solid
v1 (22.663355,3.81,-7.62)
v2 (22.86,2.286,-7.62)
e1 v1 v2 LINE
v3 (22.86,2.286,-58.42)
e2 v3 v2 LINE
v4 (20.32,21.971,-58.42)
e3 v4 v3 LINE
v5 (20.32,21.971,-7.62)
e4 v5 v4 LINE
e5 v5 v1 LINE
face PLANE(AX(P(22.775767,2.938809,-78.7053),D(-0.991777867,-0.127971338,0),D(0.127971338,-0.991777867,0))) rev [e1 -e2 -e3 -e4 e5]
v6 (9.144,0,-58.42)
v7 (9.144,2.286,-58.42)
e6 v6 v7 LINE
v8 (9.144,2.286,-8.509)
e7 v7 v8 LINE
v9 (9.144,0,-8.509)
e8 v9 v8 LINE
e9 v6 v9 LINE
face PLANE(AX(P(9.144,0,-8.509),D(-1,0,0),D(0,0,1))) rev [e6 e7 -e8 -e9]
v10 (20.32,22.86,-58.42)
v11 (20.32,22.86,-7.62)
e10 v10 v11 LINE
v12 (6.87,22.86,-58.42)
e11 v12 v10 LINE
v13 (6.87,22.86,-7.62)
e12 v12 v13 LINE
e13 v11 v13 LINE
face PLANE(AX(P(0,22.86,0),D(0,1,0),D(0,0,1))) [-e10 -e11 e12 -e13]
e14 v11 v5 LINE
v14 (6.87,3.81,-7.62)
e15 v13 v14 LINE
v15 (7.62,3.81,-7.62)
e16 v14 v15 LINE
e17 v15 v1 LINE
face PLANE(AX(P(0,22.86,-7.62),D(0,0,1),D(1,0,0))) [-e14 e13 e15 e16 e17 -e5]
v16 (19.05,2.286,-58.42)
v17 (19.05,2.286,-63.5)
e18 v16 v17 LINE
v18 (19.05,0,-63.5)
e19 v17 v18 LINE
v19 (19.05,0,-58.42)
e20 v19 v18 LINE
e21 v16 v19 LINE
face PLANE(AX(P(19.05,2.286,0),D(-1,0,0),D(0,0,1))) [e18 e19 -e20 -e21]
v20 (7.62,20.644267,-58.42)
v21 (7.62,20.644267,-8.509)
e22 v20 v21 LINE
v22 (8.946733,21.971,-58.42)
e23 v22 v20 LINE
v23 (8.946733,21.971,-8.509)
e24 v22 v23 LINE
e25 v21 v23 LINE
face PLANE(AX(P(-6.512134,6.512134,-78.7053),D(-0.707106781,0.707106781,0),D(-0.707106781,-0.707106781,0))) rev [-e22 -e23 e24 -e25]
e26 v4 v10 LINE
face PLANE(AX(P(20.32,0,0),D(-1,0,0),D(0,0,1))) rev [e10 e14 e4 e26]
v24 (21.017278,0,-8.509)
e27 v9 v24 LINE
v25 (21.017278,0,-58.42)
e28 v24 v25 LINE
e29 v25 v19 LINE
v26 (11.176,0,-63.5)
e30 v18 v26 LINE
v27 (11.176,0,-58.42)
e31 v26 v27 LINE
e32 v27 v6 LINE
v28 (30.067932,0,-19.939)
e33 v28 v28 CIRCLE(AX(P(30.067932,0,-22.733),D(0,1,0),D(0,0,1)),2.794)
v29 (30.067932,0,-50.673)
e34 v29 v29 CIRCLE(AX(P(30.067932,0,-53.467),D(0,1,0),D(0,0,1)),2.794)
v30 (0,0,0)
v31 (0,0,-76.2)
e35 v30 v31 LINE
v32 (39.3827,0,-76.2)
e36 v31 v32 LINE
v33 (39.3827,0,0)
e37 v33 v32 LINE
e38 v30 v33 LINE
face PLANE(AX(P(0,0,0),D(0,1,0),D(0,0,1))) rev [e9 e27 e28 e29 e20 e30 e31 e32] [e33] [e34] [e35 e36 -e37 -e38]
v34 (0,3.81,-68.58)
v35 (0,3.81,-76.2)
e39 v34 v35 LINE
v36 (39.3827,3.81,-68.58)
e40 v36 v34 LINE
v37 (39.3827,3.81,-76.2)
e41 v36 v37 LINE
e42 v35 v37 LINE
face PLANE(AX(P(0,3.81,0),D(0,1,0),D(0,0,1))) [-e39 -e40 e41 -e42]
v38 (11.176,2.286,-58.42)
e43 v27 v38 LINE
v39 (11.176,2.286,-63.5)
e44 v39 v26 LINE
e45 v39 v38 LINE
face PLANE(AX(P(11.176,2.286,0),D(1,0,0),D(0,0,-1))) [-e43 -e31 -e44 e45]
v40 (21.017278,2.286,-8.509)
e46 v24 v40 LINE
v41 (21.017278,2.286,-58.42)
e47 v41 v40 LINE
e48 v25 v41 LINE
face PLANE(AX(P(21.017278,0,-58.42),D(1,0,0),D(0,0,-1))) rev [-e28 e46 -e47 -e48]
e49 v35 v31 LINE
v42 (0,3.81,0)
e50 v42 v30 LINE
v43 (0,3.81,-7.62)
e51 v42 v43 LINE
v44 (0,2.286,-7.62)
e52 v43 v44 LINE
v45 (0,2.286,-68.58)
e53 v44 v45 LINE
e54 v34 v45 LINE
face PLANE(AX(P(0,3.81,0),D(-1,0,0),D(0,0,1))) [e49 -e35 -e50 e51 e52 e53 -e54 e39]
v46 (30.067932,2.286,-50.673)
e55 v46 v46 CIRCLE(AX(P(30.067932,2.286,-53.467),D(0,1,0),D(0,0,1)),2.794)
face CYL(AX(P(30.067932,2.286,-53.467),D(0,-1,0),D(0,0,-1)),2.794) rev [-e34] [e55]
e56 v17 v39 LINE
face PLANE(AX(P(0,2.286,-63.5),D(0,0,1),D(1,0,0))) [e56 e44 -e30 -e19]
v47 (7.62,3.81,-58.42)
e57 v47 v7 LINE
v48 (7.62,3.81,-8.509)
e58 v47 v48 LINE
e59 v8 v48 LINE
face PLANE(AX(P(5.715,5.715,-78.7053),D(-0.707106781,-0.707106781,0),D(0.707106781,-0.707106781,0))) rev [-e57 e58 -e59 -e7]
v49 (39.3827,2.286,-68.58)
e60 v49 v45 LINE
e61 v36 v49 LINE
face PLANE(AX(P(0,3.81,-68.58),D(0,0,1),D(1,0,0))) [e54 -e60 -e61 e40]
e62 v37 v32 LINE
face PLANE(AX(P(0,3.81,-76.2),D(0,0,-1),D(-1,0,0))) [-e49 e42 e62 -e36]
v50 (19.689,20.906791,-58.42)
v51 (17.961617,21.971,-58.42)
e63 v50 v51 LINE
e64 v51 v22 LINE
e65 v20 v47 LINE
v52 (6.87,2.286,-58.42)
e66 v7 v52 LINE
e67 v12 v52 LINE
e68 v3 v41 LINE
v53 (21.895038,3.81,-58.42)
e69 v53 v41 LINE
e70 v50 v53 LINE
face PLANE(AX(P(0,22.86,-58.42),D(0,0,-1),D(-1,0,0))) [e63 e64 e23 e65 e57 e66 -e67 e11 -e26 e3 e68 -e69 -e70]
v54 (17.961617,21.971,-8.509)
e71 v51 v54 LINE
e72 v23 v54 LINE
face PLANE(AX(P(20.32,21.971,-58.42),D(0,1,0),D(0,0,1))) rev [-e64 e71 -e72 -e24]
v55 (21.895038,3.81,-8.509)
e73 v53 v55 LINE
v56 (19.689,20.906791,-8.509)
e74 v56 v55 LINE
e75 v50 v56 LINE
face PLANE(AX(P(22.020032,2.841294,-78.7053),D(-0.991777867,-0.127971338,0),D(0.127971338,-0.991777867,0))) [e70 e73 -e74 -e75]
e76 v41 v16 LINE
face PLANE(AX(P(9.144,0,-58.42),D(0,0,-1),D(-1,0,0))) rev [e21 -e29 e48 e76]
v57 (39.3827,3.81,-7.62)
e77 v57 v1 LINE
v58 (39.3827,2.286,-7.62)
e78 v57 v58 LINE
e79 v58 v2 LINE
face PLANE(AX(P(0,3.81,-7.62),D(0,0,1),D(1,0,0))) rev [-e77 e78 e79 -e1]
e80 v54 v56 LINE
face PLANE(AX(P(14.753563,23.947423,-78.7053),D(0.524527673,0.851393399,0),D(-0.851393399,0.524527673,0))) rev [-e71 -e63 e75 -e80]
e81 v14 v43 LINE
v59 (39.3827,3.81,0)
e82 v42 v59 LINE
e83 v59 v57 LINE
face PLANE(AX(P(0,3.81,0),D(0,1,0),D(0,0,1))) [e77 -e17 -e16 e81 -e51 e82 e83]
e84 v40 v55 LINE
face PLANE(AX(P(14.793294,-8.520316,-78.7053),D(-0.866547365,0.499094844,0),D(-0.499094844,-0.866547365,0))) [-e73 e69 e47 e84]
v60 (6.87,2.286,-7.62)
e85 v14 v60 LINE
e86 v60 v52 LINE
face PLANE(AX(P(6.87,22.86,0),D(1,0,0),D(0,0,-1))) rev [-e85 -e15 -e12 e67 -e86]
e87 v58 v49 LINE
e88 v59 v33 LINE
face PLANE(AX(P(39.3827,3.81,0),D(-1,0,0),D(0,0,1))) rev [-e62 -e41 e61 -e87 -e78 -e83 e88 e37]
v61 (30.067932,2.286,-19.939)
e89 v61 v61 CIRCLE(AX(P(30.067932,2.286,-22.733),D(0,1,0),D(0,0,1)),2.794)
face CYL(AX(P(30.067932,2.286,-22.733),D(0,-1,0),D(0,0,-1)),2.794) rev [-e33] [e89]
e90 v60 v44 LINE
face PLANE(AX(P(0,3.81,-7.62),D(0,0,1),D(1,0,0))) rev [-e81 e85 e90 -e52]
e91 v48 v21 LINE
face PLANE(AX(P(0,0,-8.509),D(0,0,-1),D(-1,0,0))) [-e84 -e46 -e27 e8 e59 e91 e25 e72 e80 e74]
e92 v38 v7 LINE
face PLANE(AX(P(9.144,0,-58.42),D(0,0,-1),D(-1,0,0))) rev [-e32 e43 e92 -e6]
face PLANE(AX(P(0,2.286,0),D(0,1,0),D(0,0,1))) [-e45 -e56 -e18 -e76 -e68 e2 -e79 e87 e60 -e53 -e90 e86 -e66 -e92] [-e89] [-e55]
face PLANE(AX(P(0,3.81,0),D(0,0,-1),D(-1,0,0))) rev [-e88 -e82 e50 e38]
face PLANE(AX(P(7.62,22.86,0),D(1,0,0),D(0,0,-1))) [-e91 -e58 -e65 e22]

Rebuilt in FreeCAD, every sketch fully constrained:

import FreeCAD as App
import Part
import Sketcher
Q = App.Units.Quantity


def add_polygon(sketch, points):
    """Adds a closed chain of lines whose ends are joined by coincident constraints."""
    first, n = sketch.GeometryCount, len(points)
    for a, b in zip(points, points[1:] + points[:1]):
        sketch.addGeometry(Part.LineSegment(App.Vector(*a, 0), App.Vector(*b, 0)), False)
    for i in range(n):
        sketch.addConstraint(Sketcher.Constraint("Coincident", first + i, 2, first + (i + 1) % n, 1))

doc = App.newDocument("Part")
body = doc.addObject("PartDesign::Body", "Body")

# Sketch on XZ plane
sketch1 = doc.addObject("Sketcher::SketchObject", "Sketch")
body.addObject(sketch1)
sketch1.AttachmentSupport = (doc.XZ_Plane, [""])
sketch1.MapMode = "FlatFace"
add_polygon(sketch1, [(0, -8), (0, 0), (39, 0), (39, -8)])  # lines 0-3
sketch1.addConstraint([
    Sketcher.Constraint("Vertical", 0),
    Sketcher.Constraint("Horizontal", 1),
    Sketcher.Constraint("Vertical", 2),
    Sketcher.Constraint("Horizontal", 3),
    Sketcher.Constraint("Coincident", 0, 2, -1, 1),
    Sketcher.Constraint("DistanceY", 0, 1, 0, 2, Q("0.3 in")),
    Sketcher.Constraint("DistanceX", 1, 1, 1, 2, Q("1.5505 in")),
])
pad1 = doc.addObject("PartDesign::Pad", "Pad")
body.addObject(pad1)
pad1.Profile = sketch1
pad1.Length = Q("0.15 in")
pad1.Reversed = True
body2 = doc.addObject("PartDesign::Body", "Body001")

# Sketch on XZ plane
sketch2 = doc.addObject("Sketcher::SketchObject", "Sketch001")
body2.addObject(sketch2)
sketch2.AttachmentSupport = (doc.getObject("XZ_Plane001"), [""])
sketch2.MapMode = "FlatFace"
add_polygon(sketch2, [(0, -76), (0, -69), (39, -69), (39, -76)])  # lines 0-3
sketch2.addConstraint([
    Sketcher.Constraint("Vertical", 0),
    Sketcher.Constraint("Horizontal", 1),
    Sketcher.Constraint("Vertical", 2),
    Sketcher.Constraint("Horizontal", 3),
    Sketcher.Constraint("PointOnObject", 0, 2, -2),
    Sketcher.Constraint("DistanceY", 0, 1, 0, 2, Q("0.3 in")),
    Sketcher.Constraint("DistanceY", 2, 2, -1, 1, Q("3 in")),
    Sketcher.Constraint("DistanceX", 1, 1, 1, 2, Q("1.5505 in")),
])
pad2 = doc.addObject("PartDesign::Pad", "Pad001")
body2.addObject(pad2)
pad2.Profile = sketch2
pad2.Length = Q("0.15 in")
pad2.Reversed = True
body.AllowCompound = True
doc.recompute()

boolean = doc.addObject("PartDesign::Boolean", "Boolean")
body.addObject(boolean)
boolean.Type = "Fuse"
boolean.addObjects([body2])

# Sketch on XZ plane
sketch3 = doc.addObject("Sketcher::SketchObject", "Sketch002")
body.addObject(sketch3)
sketch3.AttachmentSupport = (doc.XZ_Plane, [""])
sketch3.MapMode = "FlatFace"
add_polygon(sketch3, [(0, -68.6), (0, -7.6), (39.4, -7.6), (39.4, -68.6)])  # lines 0-3
add_polygon(sketch3, [(19.1, -12.7), (11.2, -12.7), (11.2, -63.5), (19.1, -63.5)])  # lines 4-7
sketch3.addGeometry(Part.Circle(App.Vector(30.1, -22.7, 0), App.Vector(0, 0, 1), 2.8), False)  # 8
sketch3.addGeometry(Part.Circle(App.Vector(30.1, -53.5, 0), App.Vector(0, 0, 1), 2.8), False)  # 9
sketch3.addConstraint([
    Sketcher.Constraint("Vertical", 0),
    Sketcher.Constraint("Horizontal", 1),
    Sketcher.Constraint("Vertical", 2),
    Sketcher.Constraint("Horizontal", 3),
    Sketcher.Constraint("Horizontal", 4),
    Sketcher.Constraint("Vertical", 5),
    Sketcher.Constraint("Horizontal", 6),
    Sketcher.Constraint("Vertical", 7),
    Sketcher.Constraint("Equal", 8, 9),
    Sketcher.Constraint("PointOnObject", 0, 2, -2),
    Sketcher.Constraint("Vertical", 8, 3, 9, 3),
    Sketcher.Constraint("Diameter", 8, Q("0.22 in")),
    Sketcher.Constraint("DistanceY", 5, 2, 5, 1, Q("2 in")),
    Sketcher.Constraint("DistanceY", 0, 1, 0, 2, Q("2.4 in")),
    Sketcher.Constraint("DistanceX", 4, 2, 4, 1, Q("0.31 in")),
    Sketcher.Constraint("DistanceY", 0, 2, -1, 1, Q("0.3 in")),
    Sketcher.Constraint("DistanceY", 4, 2, -1, 1, Q("0.5 in")),
    Sketcher.Constraint("DistanceX", -1, 1, 4, 2, Q("0.44 in")),
    Sketcher.Constraint("DistanceY", 9, 3, 8, 3, Q("1.21 in")),
    Sketcher.Constraint("DistanceX", 1, 1, 1, 2, Q("1.5505 in")),
    Sketcher.Constraint("DistanceY", 8, 3, -1, 1, Q("0.895 in")),
    Sketcher.Constraint("DistanceX", -1, 1, 8, 3, 30.067932),
])
pad3 = doc.addObject("PartDesign::Pad", "Pad002")
body.addObject(pad3)
pad3.Profile = sketch3
pad3.Length = Q("0.09 in")
pad3.Reversed = True

# Sketch on XZ plane
sketch4 = doc.addObject("Sketcher::SketchObject", "Sketch003")
body.addObject(sketch4)
sketch4.AttachmentSupport = (doc.XZ_Plane, [""])
sketch4.MapMode = "FlatFace"
add_polygon(sketch4, [(6.9, -58.4), (6.9, -7.6), (7.6, -7.6), (7.6, -58.4)])  # lines 0-3
sketch4.addConstraint([
    Sketcher.Constraint("Vertical", 0),
    Sketcher.Constraint("Horizontal", 1),
    Sketcher.Constraint("Vertical", 2),
    Sketcher.Constraint("Horizontal", 3),
    Sketcher.Constraint("DistanceY", 0, 1, 0, 2, Q("2 in")),
    Sketcher.Constraint("DistanceY", 0, 2, -1, 1, Q("0.3 in")),
    Sketcher.Constraint("DistanceX", -1, 1, 1, 2, Q("0.3 in")),
    Sketcher.Constraint("DistanceX", 1, 1, 1, 2, 0.75),
])
pad4 = doc.addObject("PartDesign::Pad", "Pad003")
body.addObject(pad4)
pad4.Profile = sketch4
pad4.Length = Q("0.9 in")
pad4.Reversed = True

# Sketch on YZ plane
sketch5 = doc.addObject("Sketcher::SketchObject", "Sketch004")
body.addObject(sketch5)
sketch5.AttachmentSupport = (doc.YZ_Plane, [""])
sketch5.MapMode = "FlatFace"
sketch5.AttachmentOffset = App.Placement(App.Vector(0, 0, 0.3 * 25.4), App.Rotation())
add_polygon(sketch5, [(22.9, -7.6), (22, -7.6), (22, -58.4), (22.9, -58.4)])  # lines 0-3
sketch5.addConstraint([
    Sketcher.Constraint("Horizontal", 0),
    Sketcher.Constraint("Vertical", 1),
    Sketcher.Constraint("Horizontal", 2),
    Sketcher.Constraint("Vertical", 3),
    Sketcher.Constraint("DistanceY", 1, 2, 1, 1, Q("2 in")),
    Sketcher.Constraint("DistanceY", 0, 2, -1, 1, Q("0.3 in")),
    Sketcher.Constraint("DistanceX", -1, 1, 2, 2, Q("0.9 in")),
    Sketcher.Constraint("DistanceX", 0, 2, 0, 1, Q("0.035 in")),
])
pad5 = doc.addObject("PartDesign::Pad", "Pad004")
body.addObject(pad5)
pad5.Profile = sketch5
pad5.Length = Q("0.5 in")

# Sketch on XY plane
sketch6 = doc.addObject("Sketcher::SketchObject", "Sketch005")
body.addObject(sketch6)
sketch6.AttachmentSupport = (doc.XY_Plane, [""])
sketch6.MapMode = "FlatFace"
sketch6.AttachmentOffset = App.Placement(App.Vector(0, 0, -0.3 * 25.4), App.Rotation())
add_polygon(sketch6, [(7.6, 22), (19.6, 22), (19.7, 20.9), (21.9, 3.8), (22.1, 2.3), (7.6, 2.3)])  # lines 0-5
sketch6.addConstraint([
    Sketcher.Constraint("Horizontal", 0),
    Sketcher.Constraint("Horizontal", 4),
    Sketcher.Constraint("Vertical", 5),
    Sketcher.Constraint("Parallel", 1, 2),
    Sketcher.Constraint("Parallel", 2, 3),
    Sketcher.Constraint("DistanceX", -1, 1, 4, 2, Q("0.3 in")),
    Sketcher.Constraint("DistanceX", 0, 2, 3, 2, Q("0.1 in")),
    Sketcher.Constraint("DistanceY", 5, 1, 5, 2, Q("0.775 in")),
    Sketcher.Constraint("DistanceY", -1, 1, 2, 2, Q("0.15 in")),
    Sketcher.Constraint("DistanceY", -1, 1, 3, 2, Q("0.09 in")),
    Sketcher.Constraint("DistanceX", -1, 1, 1, 2, 19.689),
    Sketcher.Constraint("Distance", 1, 1.073031),
])
pad6 = doc.addObject("PartDesign::Pad", "Pad005")
body.addObject(pad6)
pad6.Profile = sketch6
pad6.Length = Q("0.035 in")
pad6.Reversed = True

# Sketch on XY plane
sketch7 = doc.addObject("Sketcher::SketchObject", "Sketch006")
body.addObject(sketch7)
sketch7.AttachmentSupport = (doc.XY_Plane, [""])
sketch7.MapMode = "FlatFace"
sketch7.AttachmentOffset = App.Placement(App.Vector(0, 0, -0.3 * 25.4), App.Rotation())
add_polygon(sketch7, [(21.9, 3.8), (19.7, 20.9), (18, 22), (20.3, 22), (22.7, 3.8), (22.9, 2.3), (21, 2.3)])  # lines 0-6
add_polygon(sketch7, [(9.1, 2.3), (7.6, 2.3), (7.6, 3.8)])  # lines 7-9
add_polygon(sketch7, [(8.9, 22), (7.6, 20.6), (7.6, 22)])  # lines 10-12
sketch7.addConstraint([
    Sketcher.Constraint("Horizontal", 2),
    Sketcher.Constraint("Horizontal", 5),
    Sketcher.Constraint("Horizontal", 7),
    Sketcher.Constraint("Vertical", 8),
    Sketcher.Constraint("Vertical", 11),
    Sketcher.Constraint("Horizontal", 12),
    Sketcher.Constraint("Parallel", 0, 3),
    Sketcher.Constraint("Parallel", 3, 4),
    Sketcher.Constraint("Perpendicular", 9, 10),
    Sketcher.Constraint("Horizontal", 3, 2, 6, 2),
    Sketcher.Constraint("Horizontal", 5, 2, 7, 2),
    Sketcher.Constraint("Horizontal", 6, 2, 8, 2),
    Sketcher.Constraint("Horizontal", 2, 2, 11, 2),
    Sketcher.Constraint("Vertical", 8, 2, 10, 2),
    Sketcher.Constraint("Equal", 7, 8),
    Sketcher.Constraint("DistanceX", 7, 2, 7, 1, Q("0.06 in")),
    Sketcher.Constraint("DistanceX", -1, 1, 2, 2, Q("0.8 in")),
    Sketcher.Constraint("DistanceX", -1, 1, 4, 2, Q("0.9 in")),
    Sketcher.Constraint("DistanceX", -1, 1, 7, 2, Q("0.3 in")),
    Sketcher.Constraint("DistanceY", -1, 1, 3, 2, Q("0.15 in")),
    Sketcher.Constraint("DistanceY", -1, 1, 1, 2, Q("0.865 in")),
    Sketcher.Constraint("DistanceX", -1, 1, 0, 2, 19.689),
    Sketcher.Constraint("Distance", 0, 17.238529),
    Sketcher.Constraint("Distance", 1, 2.02889),
    Sketcher.Constraint("DistanceX", 5, 2, 5, 1, 1.842722),
    Sketcher.Constraint("DistanceX", 12, 1, 12, 2, 1.326733),
])
pad7 = doc.addObject("PartDesign::Pad", "Pad006")
body.addObject(pad7)
pad7.Profile = sketch7
pad7.Length = Q("2 in")
pad7.Reversed = True

# Sketch on XZ plane
sketch8 = doc.addObject("Sketcher::SketchObject", "Sketch007")
body.addObject(sketch8)
sketch8.AttachmentSupport = (doc.XZ_Plane, [""])
sketch8.MapMode = "FlatFace"
sketch8.AttachmentOffset = App.Placement(App.Vector(0, 0, -0.09 * 25.4), App.Rotation())
add_polygon(sketch8, [(9, -58), (9, -9), (21, -9), (21, -58)])  # lines 0-3
sketch8.addConstraint([
    Sketcher.Constraint("Vertical", 0),
    Sketcher.Constraint("Horizontal", 1),
    Sketcher.Constraint("Vertical", 2),
    Sketcher.Constraint("Horizontal", 3),
    Sketcher.Constraint("DistanceY", 2, 2, -1, 1, Q("2.3 in")),
    Sketcher.Constraint("DistanceY", 0, 1, 0, 2, Q("1.965 in")),
    Sketcher.Constraint("DistanceX", -1, 1, 0, 2, Q("0.36 in")),
    Sketcher.Constraint("DistanceX", 1, 1, 1, 2, 11.873278),
])
pocket1 = doc.addObject("PartDesign::Pocket", "Pocket")
body.addObject(pocket1)
pocket1.Profile = sketch8
pocket1.Type = "ThroughAll"
pocket1.Reversed = True

doc.recompute()
